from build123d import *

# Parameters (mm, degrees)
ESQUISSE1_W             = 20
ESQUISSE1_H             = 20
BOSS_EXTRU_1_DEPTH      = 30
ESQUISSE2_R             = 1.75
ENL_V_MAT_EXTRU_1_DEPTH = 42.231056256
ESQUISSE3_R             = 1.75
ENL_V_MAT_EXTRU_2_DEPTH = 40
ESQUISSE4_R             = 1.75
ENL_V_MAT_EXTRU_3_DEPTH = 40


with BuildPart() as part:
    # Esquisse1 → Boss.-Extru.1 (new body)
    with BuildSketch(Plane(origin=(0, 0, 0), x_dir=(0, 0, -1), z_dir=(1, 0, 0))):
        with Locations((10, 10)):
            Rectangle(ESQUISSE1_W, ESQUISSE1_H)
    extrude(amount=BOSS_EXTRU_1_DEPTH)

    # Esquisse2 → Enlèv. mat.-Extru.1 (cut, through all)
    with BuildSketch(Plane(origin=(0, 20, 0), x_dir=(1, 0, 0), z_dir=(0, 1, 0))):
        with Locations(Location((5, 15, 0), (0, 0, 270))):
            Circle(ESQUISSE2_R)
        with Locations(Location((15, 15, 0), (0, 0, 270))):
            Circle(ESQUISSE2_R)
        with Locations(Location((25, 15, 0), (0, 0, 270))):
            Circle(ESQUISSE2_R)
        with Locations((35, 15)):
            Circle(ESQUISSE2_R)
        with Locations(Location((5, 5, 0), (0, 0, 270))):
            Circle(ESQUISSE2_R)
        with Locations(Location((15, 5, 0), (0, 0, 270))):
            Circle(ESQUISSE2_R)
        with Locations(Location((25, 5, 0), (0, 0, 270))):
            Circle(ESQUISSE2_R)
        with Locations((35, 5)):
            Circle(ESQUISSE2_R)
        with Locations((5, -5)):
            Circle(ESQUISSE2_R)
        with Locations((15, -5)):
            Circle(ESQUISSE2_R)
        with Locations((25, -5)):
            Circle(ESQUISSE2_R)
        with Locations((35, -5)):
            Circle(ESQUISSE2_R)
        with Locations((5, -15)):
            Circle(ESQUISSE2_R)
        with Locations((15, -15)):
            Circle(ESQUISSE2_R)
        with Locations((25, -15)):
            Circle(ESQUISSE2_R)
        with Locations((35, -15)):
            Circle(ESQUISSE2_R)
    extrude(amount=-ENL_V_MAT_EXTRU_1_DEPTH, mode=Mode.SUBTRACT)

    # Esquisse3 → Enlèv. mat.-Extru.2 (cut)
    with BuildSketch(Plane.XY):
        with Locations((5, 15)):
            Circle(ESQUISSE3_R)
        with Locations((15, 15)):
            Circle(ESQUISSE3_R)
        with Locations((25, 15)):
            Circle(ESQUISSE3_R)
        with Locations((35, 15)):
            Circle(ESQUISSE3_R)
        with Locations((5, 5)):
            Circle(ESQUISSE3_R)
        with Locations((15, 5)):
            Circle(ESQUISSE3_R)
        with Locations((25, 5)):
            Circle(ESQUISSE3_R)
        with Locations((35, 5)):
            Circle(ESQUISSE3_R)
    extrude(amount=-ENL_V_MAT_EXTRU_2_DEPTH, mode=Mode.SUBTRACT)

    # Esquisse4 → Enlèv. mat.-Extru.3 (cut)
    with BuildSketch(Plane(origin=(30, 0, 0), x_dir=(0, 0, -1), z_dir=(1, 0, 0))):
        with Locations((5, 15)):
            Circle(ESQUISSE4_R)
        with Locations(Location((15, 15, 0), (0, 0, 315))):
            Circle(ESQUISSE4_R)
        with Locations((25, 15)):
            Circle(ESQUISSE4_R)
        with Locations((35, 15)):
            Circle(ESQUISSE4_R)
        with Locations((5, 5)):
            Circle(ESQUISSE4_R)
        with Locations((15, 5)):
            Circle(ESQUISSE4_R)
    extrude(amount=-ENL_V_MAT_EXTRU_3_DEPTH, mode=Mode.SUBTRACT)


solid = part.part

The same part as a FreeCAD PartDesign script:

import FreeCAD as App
import Part
import Sketcher

V = App.Vector


def add_polygon(sketch, points):
    """Adds a closed chain of lines whose ends are joined by coincident constraints."""
    first, n = sketch.GeometryCount, len(points)
    for a, b in zip(points, points[1:] + points[:1]):
        sketch.addGeometry(Part.LineSegment(App.Vector(*a, 0), App.Vector(*b, 0)), False)
    for i in range(n):
        sketch.addConstraint(Sketcher.Constraint("Coincident", first + i, 2, first + (i + 1) % n, 1))

doc = App.newDocument("Part")
params = doc.addObject("Spreadsheet::Sheet", "Params")
for row, (alias, value) in enumerate([
    ("sketch1_width", "20 mm"),
    ("pad1_length", "30 mm"),
    ("sketch2_diameter", "3.5 mm"),
    ("sketch3_diameter", "3.5 mm"),
    ("pocket2_length", "40 mm"),
    ("sketch4_diameter", "3.5 mm"),
    ("pocket3_length", "40 mm"),
], start=1):
    params.set(f"A{row}", alias)
    params.set(f"B{row}", "=" + value)
    params.setAlias(f"B{row}", alias)

body = doc.addObject("PartDesign::Body", "Body")

# Sketch on YZ plane
sketch1 = body.newObject("Sketcher::SketchObject", "Sketch")
sketch1.AttachmentSupport = (doc.getObject("YZ_Plane"), [""])
sketch1.MapMode = "FlatFace"
add_polygon(sketch1, [(20, 0), (0, 0), (0, -20), (20, -20)])  # lines 0-3
sketch1.addConstraint([
    Sketcher.Constraint("Horizontal", 0),
    Sketcher.Constraint("Vertical", 1),
    Sketcher.Constraint("Horizontal", 2),
    Sketcher.Constraint("Vertical", 3),
    Sketcher.Constraint("Coincident", 0, 2, -1, 1),
    Sketcher.Constraint("Equal", 2, 1),
    Sketcher.Constraint("DistanceX", 0, 2, 0, 1, 20.0),
])
sketch1.setExpression("Constraints[10]", "Params.sketch1_width")
pad1 = body.newObject("PartDesign::Pad", "Pad")
pad1.Profile = sketch1
pad1.setExpression("Length", "Params.pad1_length")

# Sketch on XZ plane
sketch2 = body.newObject("Sketcher::SketchObject", "Sketch001")
sketch2.AttachmentSupport = (doc.getObject("XZ_Plane"), [""])
sketch2.MapMode = "FlatFace"
sketch2.AttachmentOffset = App.Placement(V(0, 0, -20), App.Rotation())
sketch2.addGeometry([
    Part.Circle(V(5, -15, 0), V(0, 0, 1), 1.8),  # 0
    Part.Circle(V(15, -15, 0), V(0, 0, 1), 1.8),  # 1
    Part.Circle(V(25, -15, 0), V(0, 0, 1), 1.8),  # 2
    Part.Circle(V(35, -15, 0), V(0, 0, 1), 1.8),  # 3
    Part.Circle(V(5, -5, 0), V(0, 0, 1), 1.8),  # 4
    Part.Circle(V(15, -5, 0), V(0, 0, 1), 1.8),  # 5
    Part.Circle(V(25, -5, 0), V(0, 0, 1), 1.8),  # 6
    Part.Circle(V(35, -5, 0), V(0, 0, 1), 1.8),  # 7
    Part.Circle(V(5, 5, 0), V(0, 0, 1), 1.8),  # 8
    Part.Circle(V(15, 5, 0), V(0, 0, 1), 1.8),  # 9
    Part.Circle(V(25, 5, 0), V(0, 0, 1), 1.8),  # 10
    Part.Circle(V(35, 5, 0), V(0, 0, 1), 1.8),  # 11
    Part.Circle(V(5, 15, 0), V(0, 0, 1), 1.8),  # 12
    Part.Circle(V(15, 15, 0), V(0, 0, 1), 1.8),  # 13
    Part.Circle(V(25, 15, 0), V(0, 0, 1), 1.8),  # 14
    Part.Circle(V(35, 15, 0), V(0, 0, 1), 1.8),  # 15
], False)
sketch2.addConstraint([
    Sketcher.Constraint("Equal", 0, 1),
    Sketcher.Constraint("Equal", 1, 2),
    Sketcher.Constraint("Equal", 2, 3),
    Sketcher.Constraint("Equal", 3, 4),
    Sketcher.Constraint("Equal", 4, 5),
    Sketcher.Constraint("Equal", 5, 6),
    Sketcher.Constraint("Equal", 6, 7),
    Sketcher.Constraint("Equal", 7, 8),
    Sketcher.Constraint("Equal", 8, 9),
    Sketcher.Constraint("Equal", 9, 10),
    Sketcher.Constraint("Equal", 10, 11),
    Sketcher.Constraint("Equal", 11, 12),
    Sketcher.Constraint("Equal", 12, 13),
    Sketcher.Constraint("Equal", 13, 14),
    Sketcher.Constraint("Equal", 14, 15),
    Sketcher.Constraint("Symmetric", 4, 3, 8, 3, -1),
    Sketcher.Constraint("Symmetric", 5, 3, 9, 3, -1),
    Sketcher.Constraint("Symmetric", 6, 3, 10, 3, -1),
    Sketcher.Constraint("Symmetric", 7, 3, 11, 3, -1),
    Sketcher.Constraint("Symmetric", 0, 3, 12, 3, -1),
    Sketcher.Constraint("Symmetric", 1, 3, 13, 3, -1),
    Sketcher.Constraint("Symmetric", 2, 3, 14, 3, -1),
    Sketcher.Constraint("Symmetric", 3, 3, 15, 3, -1),
    Sketcher.Constraint("Horizontal", 0, 3, 1, 3),
    Sketcher.Constraint("Horizontal", 1, 3, 2, 3),
    Sketcher.Constraint("Horizontal", 2, 3, 3, 3),
    Sketcher.Constraint("Horizontal", 4, 3, 5, 3),
    Sketcher.Constraint("Horizontal", 5, 3, 6, 3),
    Sketcher.Constraint("Horizontal", 6, 3, 7, 3),
    Sketcher.Constraint("Vertical", 0, 3, 4, 3),
    Sketcher.Constraint("Vertical", 1, 3, 5, 3),
    Sketcher.Constraint("Vertical", 2, 3, 6, 3),
    Sketcher.Constraint("Vertical", 3, 3, 7, 3),
    Sketcher.Constraint("Diameter", 0, 3.5),
    Sketcher.Constraint("DistanceX", -1, 1, 0, 3, 5.0),
    Sketcher.Constraint("DistanceY", 0, 3, -1, 1, 15.0),
    Sketcher.Constraint("DistanceX", -1, 1, 1, 3, 15.0),
    Sketcher.Constraint("DistanceX", -1, 1, 2, 3, 25.0),
    Sketcher.Constraint("DistanceX", -1, 1, 3, 3, 35.0),
    Sketcher.Constraint("DistanceY", 4, 3, -1, 1, 5.0),
])
sketch2.setExpression("Constraints[33]", "Params.sketch2_diameter")
pocket1 = body.newObject("PartDesign::Pocket", "Pocket")
pocket1.Profile = sketch2
pocket1.Type = "ThroughAll"
pocket1.Reversed = True

# Sketch on XY plane
sketch3 = body.newObject("Sketcher::SketchObject", "Sketch002")
sketch3.AttachmentSupport = (doc.getObject("XY_Plane"), [""])
sketch3.MapMode = "FlatFace"
sketch3.addGeometry([
    Part.Circle(V(5, 15, 0), V(0, 0, 1), 1.8),  # 0
    Part.Circle(V(15, 15, 0), V(0, 0, 1), 1.8),  # 1
    Part.Circle(V(25, 15, 0), V(0, 0, 1), 1.8),  # 2
    Part.Circle(V(35, 15, 0), V(0, 0, 1), 1.8),  # 3
    Part.Circle(V(5, 5, 0), V(0, 0, 1), 1.8),  # 4
    Part.Circle(V(15, 5, 0), V(0, 0, 1), 1.8),  # 5
    Part.Circle(V(25, 5, 0), V(0, 0, 1), 1.8),  # 6
    Part.Circle(V(35, 5, 0), V(0, 0, 1), 1.8),  # 7
], False)
sketch3.addConstraint([
    Sketcher.Constraint("Equal", 0, 1),
    Sketcher.Constraint("Equal", 1, 2),
    Sketcher.Constraint("Equal", 2, 3),
    Sketcher.Constraint("Equal", 3, 4),
    Sketcher.Constraint("Equal", 4, 5),
    Sketcher.Constraint("Equal", 5, 6),
    Sketcher.Constraint("Equal", 6, 7),
    Sketcher.Constraint("Horizontal", 0, 3, 1, 3),
    Sketcher.Constraint("Horizontal", 1, 3, 2, 3),
    Sketcher.Constraint("Horizontal", 2, 3, 3, 3),
    Sketcher.Constraint("Horizontal", 4, 3, 5, 3),
    Sketcher.Constraint("Horizontal", 5, 3, 6, 3),
    Sketcher.Constraint("Horizontal", 6, 3, 7, 3),
    Sketcher.Constraint("Vertical", 0, 3, 4, 3),
    Sketcher.Constraint("Vertical", 1, 3, 5, 3),
    Sketcher.Constraint("Vertical", 2, 3, 6, 3),
    Sketcher.Constraint("Vertical", 3, 3, 7, 3),
    Sketcher.Constraint("Diameter", 0, 3.5),
    Sketcher.Constraint("DistanceX", -1, 1, 0, 3, 5.0),
    Sketcher.Constraint("DistanceY", -1, 1, 0, 3, 15.0),
    Sketcher.Constraint("DistanceX", -1, 1, 1, 3, 15.0),
    Sketcher.Constraint("DistanceX", -1, 1, 2, 3, 25.0),
    Sketcher.Constraint("DistanceX", -1, 1, 3, 3, 35.0),
    Sketcher.Constraint("DistanceY", -1, 1, 4, 3, 5.0),
])
sketch3.setExpression("Constraints[17]", "Params.sketch3_diameter")
pocket2 = body.newObject("PartDesign::Pocket", "Pocket001")
pocket2.Profile = sketch3
pocket2.setExpression("Length", "Params.pocket2_length")

# Sketch on YZ plane
sketch4 = body.newObject("Sketcher::SketchObject", "Sketch003")
sketch4.AttachmentSupport = (doc.getObject("YZ_Plane"), [""])
sketch4.MapMode = "FlatFace"
sketch4.AttachmentOffset = App.Placement(V(0, 0, 30), App.Rotation())
sketch4.addGeometry([
    Part.Circle(V(15, -5, 0), V(0, 0, 1), 1.8),  # 0
    Part.Circle(V(15, -15, 0), V(0, 0, 1), 1.8),  # 1
    Part.Circle(V(15, -25, 0), V(0, 0, 1), 1.8),  # 2
    Part.Circle(V(15, -35, 0), V(0, 0, 1), 1.8),  # 3
    Part.Circle(V(5, -5, 0), V(0, 0, 1), 1.8),  # 4
    Part.Circle(V(5, -15, 0), V(0, 0, 1), 1.8),  # 5
], False)
sketch4.addConstraint([
    Sketcher.Constraint("Equal", 0, 1),
    Sketcher.Constraint("Equal", 1, 2),
    Sketcher.Constraint("Equal", 2, 3),
    Sketcher.Constraint("Equal", 3, 4),
    Sketcher.Constraint("Equal", 4, 5),
    Sketcher.Constraint("Horizontal", 0, 3, 4, 3),
    Sketcher.Constraint("Horizontal", 1, 3, 5, 3),
    Sketcher.Constraint("Vertical", 0, 3, 1, 3),
    Sketcher.Constraint("Vertical", 1, 3, 2, 3),
    Sketcher.Constraint("Vertical", 2, 3, 3, 3),
    Sketcher.Constraint("Vertical", 4, 3, 5, 3),
    Sketcher.Constraint("Diameter", 0, 3.5),
    Sketcher.Constraint("DistanceX", -1, 1, 0, 3, 15.0),
    Sketcher.Constraint("DistanceY", 0, 3, -1, 1, 5.0),
    Sketcher.Constraint("DistanceY", 1, 3, -1, 1, 15.0),
    Sketcher.Constraint("DistanceY", 2, 3, -1, 1, 25.0),
    Sketcher.Constraint("DistanceY", 3, 3, -1, 1, 35.0),
    Sketcher.Constraint("DistanceX", -1, 1, 4, 3, 5.0),
])
sketch4.setExpression("Constraints[11]", "Params.sketch4_diameter")
pocket3 = body.newObject("PartDesign::Pocket", "Pocket002")
pocket3.Profile = sketch4
pocket3.setExpression("Length", "Params.pocket3_length")

doc.recompute()
